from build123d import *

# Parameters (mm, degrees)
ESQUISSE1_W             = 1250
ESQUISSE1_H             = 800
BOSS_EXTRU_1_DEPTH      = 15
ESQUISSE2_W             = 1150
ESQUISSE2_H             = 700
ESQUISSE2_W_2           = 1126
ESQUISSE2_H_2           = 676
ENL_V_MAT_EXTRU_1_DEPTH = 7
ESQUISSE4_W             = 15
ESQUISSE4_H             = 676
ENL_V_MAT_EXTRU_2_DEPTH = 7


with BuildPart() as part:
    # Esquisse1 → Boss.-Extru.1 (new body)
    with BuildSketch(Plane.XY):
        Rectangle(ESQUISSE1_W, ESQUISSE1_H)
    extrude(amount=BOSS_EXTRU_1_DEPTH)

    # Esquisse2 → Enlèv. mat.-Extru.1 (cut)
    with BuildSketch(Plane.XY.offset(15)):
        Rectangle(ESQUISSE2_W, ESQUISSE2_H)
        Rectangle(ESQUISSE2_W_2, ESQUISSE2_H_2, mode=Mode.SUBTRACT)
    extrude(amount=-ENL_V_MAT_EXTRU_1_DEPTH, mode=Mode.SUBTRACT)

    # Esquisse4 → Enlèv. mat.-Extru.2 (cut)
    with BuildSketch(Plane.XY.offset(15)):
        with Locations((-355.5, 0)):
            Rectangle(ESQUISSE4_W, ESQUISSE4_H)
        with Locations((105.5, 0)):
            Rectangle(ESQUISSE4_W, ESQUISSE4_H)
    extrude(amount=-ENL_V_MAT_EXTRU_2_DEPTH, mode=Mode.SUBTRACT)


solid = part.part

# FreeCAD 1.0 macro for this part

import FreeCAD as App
import Part
import Sketcher
Q = App.Units.Quantity

doc = App.newDocument("Part")
params = doc.addObject("Spreadsheet::Sheet", "Params")
for row, (alias, value) in enumerate([
    ("sketch1_width", "1250 mm"),
    ("sketch1_height", "800 mm"),
    ("pad1_length", "15 mm"),
    ("sketch2_width", "1150 mm"),
    ("sketch2_width2", "1126 mm"),
    ("sketch2_height", "700 mm"),
    ("sketch2_height2", "676 mm"),
    ("pocket1_length", "7 mm"),
    ("sketch3_width", "15 mm"),
    ("sketch3_height", "676 mm"),
    ("pocket2_length", "7 mm"),
], start=1):
    params.set(f"A{row}", alias)
    params.set(f"B{row}", "=" + value)
    params.setAlias(f"B{row}", alias)

body = doc.addObject("PartDesign::Body", "Body")

# Sketch on XY plane
sketch1 = doc.addObject("Sketcher::SketchObject", "Sketch")
body.addObject(sketch1)
sketch1.AttachmentSupport = (doc.XY_Plane, [""])
sketch1.MapMode = "FlatFace"
sketch1.addGeometry([
    Part.LineSegment(App.Vector(-625, 400, 0), App.Vector(-625, -400, 0)),
    Part.LineSegment(App.Vector(-625, -400, 0), App.Vector(625, -400, 0)),
    Part.LineSegment(App.Vector(625, -400, 0), App.Vector(625, 400, 0)),
    Part.LineSegment(App.Vector(625, 400, 0), App.Vector(-625, 400, 0)),
], False)
sketch1.addConstraint([
    Sketcher.Constraint("Coincident", 0, 2, 1, 1),
    Sketcher.Constraint("Coincident", 1, 2, 2, 1),
    Sketcher.Constraint("Coincident", 2, 2, 3, 1),
    Sketcher.Constraint("Coincident", 3, 2, 0, 1),
    Sketcher.Constraint("Vertical", 0),
    Sketcher.Constraint("Horizontal", 1),
    Sketcher.Constraint("Vertical", 2),
    Sketcher.Constraint("Horizontal", 3),
    Sketcher.Constraint("Symmetric", 0, 2, 2, 2, -1, 1),
    Sketcher.Constraint("DistanceX", 1, 1, 1, 2, Q("1250 mm")),
    Sketcher.Constraint("DistanceY", 0, 2, 0, 1, Q("800 mm")),
])
sketch1.setExpression("Constraints[9]", "Params.sketch1_width")
sketch1.setExpression("Constraints[10]", "Params.sketch1_height")
pad1 = doc.addObject("PartDesign::Pad", "Pad")
body.addObject(pad1)
pad1.Profile = sketch1
pad1.setExpression("Length", "Params.pad1_length")

# Sketch on XY plane
sketch2 = doc.addObject("Sketcher::SketchObject", "Sketch001")
body.addObject(sketch2)
sketch2.AttachmentSupport = (doc.XY_Plane, [""])
sketch2.MapMode = "FlatFace"
sketch2.AttachmentOffset = App.Placement(App.Vector(0, 0, 15), App.Rotation())
sketch2.addGeometry([
    Part.LineSegment(App.Vector(-575, 350, 0), App.Vector(-575, -350, 0)),  # 0
    Part.LineSegment(App.Vector(-575, -350, 0), App.Vector(575, -350, 0)),  # 1
    Part.LineSegment(App.Vector(575, -350, 0), App.Vector(575, 350, 0)),  # 2
    Part.LineSegment(App.Vector(575, 350, 0), App.Vector(-575, 350, 0)),  # 3
    Part.LineSegment(App.Vector(563, -338, 0), App.Vector(-563, -338, 0)),  # 4
    Part.LineSegment(App.Vector(-563, -338, 0), App.Vector(-563, 338, 0)),  # 5
    Part.LineSegment(App.Vector(-563, 338, 0), App.Vector(563, 338, 0)),  # 6
    Part.LineSegment(App.Vector(563, 338, 0), App.Vector(563, -338, 0)),  # 7
], False)
sketch2.addConstraint([
    Sketcher.Constraint("Coincident", 0, 2, 1, 1),
    Sketcher.Constraint("Coincident", 1, 2, 2, 1),
    Sketcher.Constraint("Coincident", 2, 2, 3, 1),
    Sketcher.Constraint("Coincident", 3, 2, 0, 1),
    Sketcher.Constraint("Coincident", 4, 2, 5, 1),
    Sketcher.Constraint("Coincident", 5, 2, 6, 1),
    Sketcher.Constraint("Coincident", 6, 2, 7, 1),
    Sketcher.Constraint("Coincident", 7, 2, 4, 1),
    Sketcher.Constraint("Vertical", 0),
    Sketcher.Constraint("Horizontal", 1),
    Sketcher.Constraint("Vertical", 2),
    Sketcher.Constraint("Horizontal", 3),
    Sketcher.Constraint("Horizontal", 4),
    Sketcher.Constraint("Vertical", 5),
    Sketcher.Constraint("Horizontal", 6),
    Sketcher.Constraint("Vertical", 7),
    Sketcher.Constraint("Symmetric", 0, 2, 2, 2, -1, 1),
    Sketcher.Constraint("Symmetric", 4, 2, 6, 2, -1, 1),
    Sketcher.Constraint("DistanceX", 1, 1, 1, 2, Q("1150 mm")),
    Sketcher.Constraint("DistanceX", 4, 2, 4, 1, Q("1126 mm")),
    Sketcher.Constraint("DistanceY", 0, 2, 0, 1, Q("700 mm")),
    Sketcher.Constraint("DistanceY", 5, 1, 5, 2, Q("676 mm")),
])
sketch2.setExpression("Constraints[18]", "Params.sketch2_width")
sketch2.setExpression("Constraints[19]", "Params.sketch2_width2")
sketch2.setExpression("Constraints[20]", "Params.sketch2_height")
sketch2.setExpression("Constraints[21]", "Params.sketch2_height2")
pocket1 = doc.addObject("PartDesign::Pocket", "Pocket")
body.addObject(pocket1)
pocket1.Profile = sketch2
pocket1.setExpression("Length", "Params.pocket1_length")

# Sketch on XY plane
sketch3 = doc.addObject("Sketcher::SketchObject", "Sketch002")
body.addObject(sketch3)
sketch3.AttachmentSupport = (doc.XY_Plane, [""])
sketch3.MapMode = "FlatFace"
sketch3.AttachmentOffset = App.Placement(App.Vector(0, 0, 15), App.Rotation())
sketch3.addGeometry([
    Part.LineSegment(App.Vector(-363, 338, 0), App.Vector(-363, -338, 0)),  # 0
    Part.LineSegment(App.Vector(-363, -338, 0), App.Vector(-348, -338, 0)),  # 1
    Part.LineSegment(App.Vector(-348, -338, 0), App.Vector(-348, 338, 0)),  # 2
    Part.LineSegment(App.Vector(-348, 338, 0), App.Vector(-363, 338, 0)),  # 3
    Part.LineSegment(App.Vector(98, 338, 0), App.Vector(98, -338, 0)),  # 4
    Part.LineSegment(App.Vector(98, -338, 0), App.Vector(113, -338, 0)),  # 5
    Part.LineSegment(App.Vector(113, -338, 0), App.Vector(113, 338, 0)),  # 6
    Part.LineSegment(App.Vector(113, 338, 0), App.Vector(98, 338, 0)),  # 7
], False)
sketch3.addConstraint([
    Sketcher.Constraint("Coincident", 0, 2, 1, 1),
    Sketcher.Constraint("Coincident", 1, 2, 2, 1),
    Sketcher.Constraint("Coincident", 2, 2, 3, 1),
    Sketcher.Constraint("Coincident", 3, 2, 0, 1),
    Sketcher.Constraint("Coincident", 4, 2, 5, 1),
    Sketcher.Constraint("Coincident", 5, 2, 6, 1),
    Sketcher.Constraint("Coincident", 6, 2, 7, 1),
    Sketcher.Constraint("Coincident", 7, 2, 4, 1),
    Sketcher.Constraint("Vertical", 0),
    Sketcher.Constraint("Horizontal", 1),
    Sketcher.Constraint("Vertical", 2),
    Sketcher.Constraint("Horizontal", 3),
    Sketcher.Constraint("Vertical", 4),
    Sketcher.Constraint("Horizontal", 5),
    Sketcher.Constraint("Vertical", 6),
    Sketcher.Constraint("Horizontal", 7),
    Sketcher.Constraint("Horizontal", 1, 2, 4, 2),
    Sketcher.Constraint("Horizontal", 3, 2, 6, 2),
    Sketcher.Constraint("Equal", 3, 5),
    Sketcher.Constraint("DistanceX", 1, 1, 1, 2, Q("15 mm")),
    Sketcher.Constraint("DistanceY", 0, 2, 0, 1, Q("676 mm")),
    Sketcher.Constraint("DistanceX", 0, 2, -1, 1, Q("363 mm")),
    Sketcher.Constraint("DistanceY", 0, 2, -1, 1, Q("338 mm")),
    Sketcher.Constraint("DistanceX", -1, 1, 4, 2, Q("98 mm")),
])
sketch3.setExpression("Constraints[19]", "Params.sketch3_width")
sketch3.setExpression("Constraints[20]", "Params.sketch3_height")
pocket2 = doc.addObject("PartDesign::Pocket", "Pocket001")
body.addObject(pocket2)
pocket2.Profile = sketch3
pocket2.setExpression("Length", "Params.pocket2_length")

doc.recompute()
